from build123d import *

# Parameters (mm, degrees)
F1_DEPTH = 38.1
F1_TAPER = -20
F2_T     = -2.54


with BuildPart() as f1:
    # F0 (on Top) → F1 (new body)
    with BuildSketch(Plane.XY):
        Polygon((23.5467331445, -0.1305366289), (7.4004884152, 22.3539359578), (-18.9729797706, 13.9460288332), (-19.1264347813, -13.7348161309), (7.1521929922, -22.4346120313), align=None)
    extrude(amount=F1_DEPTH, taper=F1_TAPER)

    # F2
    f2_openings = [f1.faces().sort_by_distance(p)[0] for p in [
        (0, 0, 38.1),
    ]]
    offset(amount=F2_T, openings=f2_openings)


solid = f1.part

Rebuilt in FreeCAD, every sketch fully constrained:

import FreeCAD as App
import Part
import Sketcher

V = App.Vector


def faces_at(feature, points):
    """Names of the faces that lie closest to the given points."""
    faces = feature.Shape.Faces
    near = lambda p: min(range(len(faces)), key=lambda i: faces[i].distToShape(Part.Vertex(*p))[0])
    return sorted({f"Face{near(p) + 1}" for p in points})

doc = App.newDocument("Part")
params = doc.addObject("Spreadsheet::Sheet", "Params")
for row, (alias, value) in enumerate([
    ("pad1_length", "1.5 in"),
    ("pad1_taper", "20 deg"),
    ("thickness_wall", "0.1 in"),
], start=1):
    params.set(f"A{row}", alias)
    params.set(f"B{row}", "=" + value)
    params.setAlias(f"B{row}", alias)

body = doc.addObject("PartDesign::Body", "Body")

sketch1 = body.newObject("Sketcher::SketchObject", "Sketch")
sketch1.AttachmentSupport = (doc.getObject("XY_Plane"), [""])
sketch1.MapMode = "FlatFace"
sketch1.addGeometry([
    Part.LineSegment(V(23.546733, -0.130537, 0), V(7.400488, 22.353936, 0)),
    Part.LineSegment(V(7.400488, 22.353936, 0), V(-18.97298, 13.946029, 0)),
    Part.LineSegment(V(-18.97298, 13.946029, 0), V(-19.126435, -13.734816, 0)),
    Part.LineSegment(V(-19.126435, -13.734816, 0), V(7.152193, -22.434612, 0)),
    Part.LineSegment(V(7.152193, -22.434612, 0), V(23.546733, -0.130537, 0)),
], False)
sketch1.addConstraint([
    Sketcher.Constraint("Coincident", 0, 2, 1, 1),
    Sketcher.Constraint("Coincident", 1, 2, 2, 1),
    Sketcher.Constraint("Coincident", 2, 2, 3, 1),
    Sketcher.Constraint("Coincident", 3, 2, 4, 1),
    Sketcher.Constraint("Coincident", 4, 2, 0, 1),
    Sketcher.Constraint("Equal", 0, 1),
    Sketcher.Constraint("Equal", 1, 2),
    Sketcher.Constraint("Equal", 2, 3),
    Sketcher.Constraint("Equal", 3, 4),
    Sketcher.Constraint("Distance", 0, 27.68127),
    Sketcher.Constraint("DistanceX", -1, 1, 0, 2, 7.400488),
    Sketcher.Constraint("DistanceX", 1, 2, -1, 1, 18.97298),
    Sketcher.Constraint("DistanceY", -1, 1, 1, 2, 13.946029),
    Sketcher.Constraint("DistanceY", 3, 2, 1, 2, 36.380641),
    Sketcher.Constraint("DistanceX", 3, 2, 4, 2, 16.39454),
])
pad1 = body.newObject("PartDesign::Pad", "Pad")
pad1.Profile = sketch1
pad1.setExpression("Length", "Params.pad1_length")
pad1.setExpression("TaperAngle", "Params.pad1_taper")
doc.recompute()

thickness = body.newObject("PartDesign::Thickness", "Thickness")
thickness.Base = (pad1, faces_at(pad1, [(1.18, -3.702, 38.1)]))
thickness.setExpression("Value", "Params.thickness_wall")
thickness.Reversed = True
thickness.Join = "Arc"

doc.recompute()
